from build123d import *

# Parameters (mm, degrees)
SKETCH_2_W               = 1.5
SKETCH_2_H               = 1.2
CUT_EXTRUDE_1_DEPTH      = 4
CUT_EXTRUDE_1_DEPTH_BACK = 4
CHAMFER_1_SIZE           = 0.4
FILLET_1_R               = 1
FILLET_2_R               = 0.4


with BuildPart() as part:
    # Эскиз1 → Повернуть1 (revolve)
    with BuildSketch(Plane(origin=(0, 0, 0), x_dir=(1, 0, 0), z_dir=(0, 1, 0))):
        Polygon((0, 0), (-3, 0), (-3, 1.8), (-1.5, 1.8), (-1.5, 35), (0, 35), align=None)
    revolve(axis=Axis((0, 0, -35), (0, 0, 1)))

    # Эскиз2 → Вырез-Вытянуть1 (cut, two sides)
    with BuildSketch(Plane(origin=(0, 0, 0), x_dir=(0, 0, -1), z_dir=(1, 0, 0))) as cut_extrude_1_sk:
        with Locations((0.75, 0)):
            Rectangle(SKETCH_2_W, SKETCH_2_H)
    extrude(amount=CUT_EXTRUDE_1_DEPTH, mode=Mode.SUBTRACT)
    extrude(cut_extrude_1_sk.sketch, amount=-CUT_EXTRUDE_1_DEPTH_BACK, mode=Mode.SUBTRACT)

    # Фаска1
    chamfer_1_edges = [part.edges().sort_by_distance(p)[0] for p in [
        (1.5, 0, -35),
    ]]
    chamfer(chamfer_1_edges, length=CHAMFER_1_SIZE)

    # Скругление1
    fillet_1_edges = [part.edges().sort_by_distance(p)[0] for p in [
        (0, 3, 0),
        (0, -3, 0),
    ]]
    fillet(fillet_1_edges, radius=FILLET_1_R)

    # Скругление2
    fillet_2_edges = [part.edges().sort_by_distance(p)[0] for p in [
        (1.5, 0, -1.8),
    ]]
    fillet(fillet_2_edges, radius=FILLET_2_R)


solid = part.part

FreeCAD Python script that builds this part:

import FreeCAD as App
import Part
import Sketcher

V = App.Vector
Q = App.Units.Quantity


def edges_at(feature, points):
    """Names of the edges that pass closest to the given points."""
    edges = feature.Shape.Edges
    near = lambda p: min(range(len(edges)), key=lambda i: edges[i].distToShape(Part.Vertex(*p))[0])
    return sorted({f"Edge{near(p) + 1}" for p in points})

doc = App.newDocument("Part")
params = doc.addObject("Spreadsheet::Sheet", "Params")
for row, (alias, value) in enumerate([
    ("sketch1_width", "3 mm"),
    ("sketch1_height", "35 mm"),
    ("sketch1_height2", "33.2 mm"),
    ("revolution_angle", "360 deg"),
    ("sketch2_width", "1.2 mm"),
    ("sketch2_height", "1.5 mm"),
    ("chamfer_size", "0.4 mm"),
    ("fillet_radius", "1 mm"),
    ("fillet2_radius", "0.4 mm"),
], start=1):
    params.set(f"A{row}", alias)
    params.set(f"B{row}", "=" + value)
    params.setAlias(f"B{row}", alias)

body = doc.addObject("PartDesign::Body", "Body")

# Sketch on XZ plane
sketch1 = body.newObject("Sketcher::SketchObject", "Sketch")
sketch1.AttachmentSupport = (doc.getObject("XZ_Plane"), [""])
sketch1.MapMode = "FlatFace"
sketch1.addGeometry(Part.LineSegment(V(-3, 0, 0), V(0, 0, 0)), False)
sketch1.addGeometry(Part.LineSegment(V(0, 0, 0), V(0, -35, 0)), False)
sketch1.addGeometry(Part.LineSegment(V(0, -35, 0), V(-1.5, -35, 0)), False)
sketch1.addGeometry(Part.LineSegment(V(-1.5, -35, 0), V(-1.5, -1.8, 0)), False)
sketch1.addGeometry(Part.LineSegment(V(-1.5, -1.8, 0), V(-3, -1.8, 0)), False)
sketch1.addGeometry(Part.LineSegment(V(-3, -1.8, 0), V(-3, 0, 0)), False)
sketch1.addConstraint(Sketcher.Constraint("Coincident", 0, 2, 1, 1))
sketch1.addConstraint(Sketcher.Constraint("Coincident", 1, 2, 2, 1))
sketch1.addConstraint(Sketcher.Constraint("Coincident", 2, 2, 3, 1))
sketch1.addConstraint(Sketcher.Constraint("Coincident", 3, 2, 4, 1))
sketch1.addConstraint(Sketcher.Constraint("Coincident", 4, 2, 5, 1))
sketch1.addConstraint(Sketcher.Constraint("Coincident", 5, 2, 0, 1))
sketch1.addConstraint(Sketcher.Constraint("Horizontal", 0))
sketch1.addConstraint(Sketcher.Constraint("Vertical", 1))
sketch1.addConstraint(Sketcher.Constraint("Horizontal", 2))
sketch1.addConstraint(Sketcher.Constraint("Vertical", 3))
sketch1.addConstraint(Sketcher.Constraint("Horizontal", 4))
sketch1.addConstraint(Sketcher.Constraint("Vertical", 5))
sketch1.addConstraint(Sketcher.Constraint("Coincident", 0, 2, -1, 1))
sketch1.addConstraint(Sketcher.Constraint("Equal", 2, 4))
sketch1.addConstraint(Sketcher.Constraint("DistanceX", 0, 1, 0, 2, Q("3 mm")))
sketch1.addConstraint(Sketcher.Constraint("DistanceY", 1, 2, 1, 1, Q("35 mm")))
sketch1.addConstraint(Sketcher.Constraint("DistanceY", 3, 1, 3, 2, Q("33.2 mm")))
sketch1.setExpression("Constraints[14]", "Params.sketch1_width")
sketch1.setExpression("Constraints[15]", "Params.sketch1_height")
sketch1.setExpression("Constraints[16]", "Params.sketch1_height2")
revolution = body.newObject("PartDesign::Revolution", "Revolution")
revolution.Profile = sketch1
revolution.ReferenceAxis = (sketch1, ["V_Axis"])
revolution.setExpression("Angle", "Params.revolution_angle")

# Sketch on YZ plane
sketch2 = body.newObject("Sketcher::SketchObject", "Sketch001")
sketch2.AttachmentSupport = (doc.getObject("YZ_Plane"), [""])
sketch2.MapMode = "FlatFace"
sketch2.addGeometry(Part.LineSegment(V(0.6, 0, 0), V(-0.6, 0, 0)), False)
sketch2.addGeometry(Part.LineSegment(V(-0.6, 0, 0), V(-0.6, -1.5, 0)), False)
sketch2.addGeometry(Part.LineSegment(V(-0.6, -1.5, 0), V(0.6, -1.5, 0)), False)
sketch2.addGeometry(Part.LineSegment(V(0.6, -1.5, 0), V(0.6, 0, 0)), False)
sketch2.addConstraint(Sketcher.Constraint("Coincident", 0, 2, 1, 1))
sketch2.addConstraint(Sketcher.Constraint("Coincident", 1, 2, 2, 1))
sketch2.addConstraint(Sketcher.Constraint("Coincident", 2, 2, 3, 1))
sketch2.addConstraint(Sketcher.Constraint("Coincident", 3, 2, 0, 1))
sketch2.addConstraint(Sketcher.Constraint("Horizontal", 0))
sketch2.addConstraint(Sketcher.Constraint("Vertical", 1))
sketch2.addConstraint(Sketcher.Constraint("Horizontal", 2))
sketch2.addConstraint(Sketcher.Constraint("Vertical", 3))
sketch2.addConstraint(Sketcher.Constraint("Symmetric", 0, 2, 3, 2, -1, 1))
sketch2.addConstraint(Sketcher.Constraint("DistanceX", 0, 2, 0, 1, Q("1.2 mm")))
sketch2.addConstraint(Sketcher.Constraint("DistanceY", 1, 2, 1, 1, Q("1.5 mm")))
sketch2.setExpression("Constraints[9]", "Params.sketch2_width")
sketch2.setExpression("Constraints[10]", "Params.sketch2_height")
pocket1 = body.newObject("PartDesign::Pocket", "Pocket")
pocket1.Profile = sketch2
pocket1.Type = "ThroughAll"
pocket1.Midplane = True
doc.recompute()

chamfer = body.newObject("PartDesign::Chamfer", "Chamfer")
chamfer.Base = (pocket1, edges_at(pocket1, [(1.5, 0, -35)]))
chamfer.setExpression("Size", "Params.chamfer_size")
doc.recompute()

fillet = body.newObject("PartDesign::Fillet", "Fillet")
fillet.Base = (chamfer, edges_at(chamfer, [(0, 3, 0), (0, -3, 0)]))
fillet.setExpression("Radius", "Params.fillet_radius")
doc.recompute()

fillet2 = body.newObject("PartDesign::Fillet", "Fillet001")
fillet2.Base = (fillet, edges_at(fillet, [(1.5, 0, -1.8)]))
fillet2.setExpression("Radius", "Params.fillet2_radius")

doc.recompute()
